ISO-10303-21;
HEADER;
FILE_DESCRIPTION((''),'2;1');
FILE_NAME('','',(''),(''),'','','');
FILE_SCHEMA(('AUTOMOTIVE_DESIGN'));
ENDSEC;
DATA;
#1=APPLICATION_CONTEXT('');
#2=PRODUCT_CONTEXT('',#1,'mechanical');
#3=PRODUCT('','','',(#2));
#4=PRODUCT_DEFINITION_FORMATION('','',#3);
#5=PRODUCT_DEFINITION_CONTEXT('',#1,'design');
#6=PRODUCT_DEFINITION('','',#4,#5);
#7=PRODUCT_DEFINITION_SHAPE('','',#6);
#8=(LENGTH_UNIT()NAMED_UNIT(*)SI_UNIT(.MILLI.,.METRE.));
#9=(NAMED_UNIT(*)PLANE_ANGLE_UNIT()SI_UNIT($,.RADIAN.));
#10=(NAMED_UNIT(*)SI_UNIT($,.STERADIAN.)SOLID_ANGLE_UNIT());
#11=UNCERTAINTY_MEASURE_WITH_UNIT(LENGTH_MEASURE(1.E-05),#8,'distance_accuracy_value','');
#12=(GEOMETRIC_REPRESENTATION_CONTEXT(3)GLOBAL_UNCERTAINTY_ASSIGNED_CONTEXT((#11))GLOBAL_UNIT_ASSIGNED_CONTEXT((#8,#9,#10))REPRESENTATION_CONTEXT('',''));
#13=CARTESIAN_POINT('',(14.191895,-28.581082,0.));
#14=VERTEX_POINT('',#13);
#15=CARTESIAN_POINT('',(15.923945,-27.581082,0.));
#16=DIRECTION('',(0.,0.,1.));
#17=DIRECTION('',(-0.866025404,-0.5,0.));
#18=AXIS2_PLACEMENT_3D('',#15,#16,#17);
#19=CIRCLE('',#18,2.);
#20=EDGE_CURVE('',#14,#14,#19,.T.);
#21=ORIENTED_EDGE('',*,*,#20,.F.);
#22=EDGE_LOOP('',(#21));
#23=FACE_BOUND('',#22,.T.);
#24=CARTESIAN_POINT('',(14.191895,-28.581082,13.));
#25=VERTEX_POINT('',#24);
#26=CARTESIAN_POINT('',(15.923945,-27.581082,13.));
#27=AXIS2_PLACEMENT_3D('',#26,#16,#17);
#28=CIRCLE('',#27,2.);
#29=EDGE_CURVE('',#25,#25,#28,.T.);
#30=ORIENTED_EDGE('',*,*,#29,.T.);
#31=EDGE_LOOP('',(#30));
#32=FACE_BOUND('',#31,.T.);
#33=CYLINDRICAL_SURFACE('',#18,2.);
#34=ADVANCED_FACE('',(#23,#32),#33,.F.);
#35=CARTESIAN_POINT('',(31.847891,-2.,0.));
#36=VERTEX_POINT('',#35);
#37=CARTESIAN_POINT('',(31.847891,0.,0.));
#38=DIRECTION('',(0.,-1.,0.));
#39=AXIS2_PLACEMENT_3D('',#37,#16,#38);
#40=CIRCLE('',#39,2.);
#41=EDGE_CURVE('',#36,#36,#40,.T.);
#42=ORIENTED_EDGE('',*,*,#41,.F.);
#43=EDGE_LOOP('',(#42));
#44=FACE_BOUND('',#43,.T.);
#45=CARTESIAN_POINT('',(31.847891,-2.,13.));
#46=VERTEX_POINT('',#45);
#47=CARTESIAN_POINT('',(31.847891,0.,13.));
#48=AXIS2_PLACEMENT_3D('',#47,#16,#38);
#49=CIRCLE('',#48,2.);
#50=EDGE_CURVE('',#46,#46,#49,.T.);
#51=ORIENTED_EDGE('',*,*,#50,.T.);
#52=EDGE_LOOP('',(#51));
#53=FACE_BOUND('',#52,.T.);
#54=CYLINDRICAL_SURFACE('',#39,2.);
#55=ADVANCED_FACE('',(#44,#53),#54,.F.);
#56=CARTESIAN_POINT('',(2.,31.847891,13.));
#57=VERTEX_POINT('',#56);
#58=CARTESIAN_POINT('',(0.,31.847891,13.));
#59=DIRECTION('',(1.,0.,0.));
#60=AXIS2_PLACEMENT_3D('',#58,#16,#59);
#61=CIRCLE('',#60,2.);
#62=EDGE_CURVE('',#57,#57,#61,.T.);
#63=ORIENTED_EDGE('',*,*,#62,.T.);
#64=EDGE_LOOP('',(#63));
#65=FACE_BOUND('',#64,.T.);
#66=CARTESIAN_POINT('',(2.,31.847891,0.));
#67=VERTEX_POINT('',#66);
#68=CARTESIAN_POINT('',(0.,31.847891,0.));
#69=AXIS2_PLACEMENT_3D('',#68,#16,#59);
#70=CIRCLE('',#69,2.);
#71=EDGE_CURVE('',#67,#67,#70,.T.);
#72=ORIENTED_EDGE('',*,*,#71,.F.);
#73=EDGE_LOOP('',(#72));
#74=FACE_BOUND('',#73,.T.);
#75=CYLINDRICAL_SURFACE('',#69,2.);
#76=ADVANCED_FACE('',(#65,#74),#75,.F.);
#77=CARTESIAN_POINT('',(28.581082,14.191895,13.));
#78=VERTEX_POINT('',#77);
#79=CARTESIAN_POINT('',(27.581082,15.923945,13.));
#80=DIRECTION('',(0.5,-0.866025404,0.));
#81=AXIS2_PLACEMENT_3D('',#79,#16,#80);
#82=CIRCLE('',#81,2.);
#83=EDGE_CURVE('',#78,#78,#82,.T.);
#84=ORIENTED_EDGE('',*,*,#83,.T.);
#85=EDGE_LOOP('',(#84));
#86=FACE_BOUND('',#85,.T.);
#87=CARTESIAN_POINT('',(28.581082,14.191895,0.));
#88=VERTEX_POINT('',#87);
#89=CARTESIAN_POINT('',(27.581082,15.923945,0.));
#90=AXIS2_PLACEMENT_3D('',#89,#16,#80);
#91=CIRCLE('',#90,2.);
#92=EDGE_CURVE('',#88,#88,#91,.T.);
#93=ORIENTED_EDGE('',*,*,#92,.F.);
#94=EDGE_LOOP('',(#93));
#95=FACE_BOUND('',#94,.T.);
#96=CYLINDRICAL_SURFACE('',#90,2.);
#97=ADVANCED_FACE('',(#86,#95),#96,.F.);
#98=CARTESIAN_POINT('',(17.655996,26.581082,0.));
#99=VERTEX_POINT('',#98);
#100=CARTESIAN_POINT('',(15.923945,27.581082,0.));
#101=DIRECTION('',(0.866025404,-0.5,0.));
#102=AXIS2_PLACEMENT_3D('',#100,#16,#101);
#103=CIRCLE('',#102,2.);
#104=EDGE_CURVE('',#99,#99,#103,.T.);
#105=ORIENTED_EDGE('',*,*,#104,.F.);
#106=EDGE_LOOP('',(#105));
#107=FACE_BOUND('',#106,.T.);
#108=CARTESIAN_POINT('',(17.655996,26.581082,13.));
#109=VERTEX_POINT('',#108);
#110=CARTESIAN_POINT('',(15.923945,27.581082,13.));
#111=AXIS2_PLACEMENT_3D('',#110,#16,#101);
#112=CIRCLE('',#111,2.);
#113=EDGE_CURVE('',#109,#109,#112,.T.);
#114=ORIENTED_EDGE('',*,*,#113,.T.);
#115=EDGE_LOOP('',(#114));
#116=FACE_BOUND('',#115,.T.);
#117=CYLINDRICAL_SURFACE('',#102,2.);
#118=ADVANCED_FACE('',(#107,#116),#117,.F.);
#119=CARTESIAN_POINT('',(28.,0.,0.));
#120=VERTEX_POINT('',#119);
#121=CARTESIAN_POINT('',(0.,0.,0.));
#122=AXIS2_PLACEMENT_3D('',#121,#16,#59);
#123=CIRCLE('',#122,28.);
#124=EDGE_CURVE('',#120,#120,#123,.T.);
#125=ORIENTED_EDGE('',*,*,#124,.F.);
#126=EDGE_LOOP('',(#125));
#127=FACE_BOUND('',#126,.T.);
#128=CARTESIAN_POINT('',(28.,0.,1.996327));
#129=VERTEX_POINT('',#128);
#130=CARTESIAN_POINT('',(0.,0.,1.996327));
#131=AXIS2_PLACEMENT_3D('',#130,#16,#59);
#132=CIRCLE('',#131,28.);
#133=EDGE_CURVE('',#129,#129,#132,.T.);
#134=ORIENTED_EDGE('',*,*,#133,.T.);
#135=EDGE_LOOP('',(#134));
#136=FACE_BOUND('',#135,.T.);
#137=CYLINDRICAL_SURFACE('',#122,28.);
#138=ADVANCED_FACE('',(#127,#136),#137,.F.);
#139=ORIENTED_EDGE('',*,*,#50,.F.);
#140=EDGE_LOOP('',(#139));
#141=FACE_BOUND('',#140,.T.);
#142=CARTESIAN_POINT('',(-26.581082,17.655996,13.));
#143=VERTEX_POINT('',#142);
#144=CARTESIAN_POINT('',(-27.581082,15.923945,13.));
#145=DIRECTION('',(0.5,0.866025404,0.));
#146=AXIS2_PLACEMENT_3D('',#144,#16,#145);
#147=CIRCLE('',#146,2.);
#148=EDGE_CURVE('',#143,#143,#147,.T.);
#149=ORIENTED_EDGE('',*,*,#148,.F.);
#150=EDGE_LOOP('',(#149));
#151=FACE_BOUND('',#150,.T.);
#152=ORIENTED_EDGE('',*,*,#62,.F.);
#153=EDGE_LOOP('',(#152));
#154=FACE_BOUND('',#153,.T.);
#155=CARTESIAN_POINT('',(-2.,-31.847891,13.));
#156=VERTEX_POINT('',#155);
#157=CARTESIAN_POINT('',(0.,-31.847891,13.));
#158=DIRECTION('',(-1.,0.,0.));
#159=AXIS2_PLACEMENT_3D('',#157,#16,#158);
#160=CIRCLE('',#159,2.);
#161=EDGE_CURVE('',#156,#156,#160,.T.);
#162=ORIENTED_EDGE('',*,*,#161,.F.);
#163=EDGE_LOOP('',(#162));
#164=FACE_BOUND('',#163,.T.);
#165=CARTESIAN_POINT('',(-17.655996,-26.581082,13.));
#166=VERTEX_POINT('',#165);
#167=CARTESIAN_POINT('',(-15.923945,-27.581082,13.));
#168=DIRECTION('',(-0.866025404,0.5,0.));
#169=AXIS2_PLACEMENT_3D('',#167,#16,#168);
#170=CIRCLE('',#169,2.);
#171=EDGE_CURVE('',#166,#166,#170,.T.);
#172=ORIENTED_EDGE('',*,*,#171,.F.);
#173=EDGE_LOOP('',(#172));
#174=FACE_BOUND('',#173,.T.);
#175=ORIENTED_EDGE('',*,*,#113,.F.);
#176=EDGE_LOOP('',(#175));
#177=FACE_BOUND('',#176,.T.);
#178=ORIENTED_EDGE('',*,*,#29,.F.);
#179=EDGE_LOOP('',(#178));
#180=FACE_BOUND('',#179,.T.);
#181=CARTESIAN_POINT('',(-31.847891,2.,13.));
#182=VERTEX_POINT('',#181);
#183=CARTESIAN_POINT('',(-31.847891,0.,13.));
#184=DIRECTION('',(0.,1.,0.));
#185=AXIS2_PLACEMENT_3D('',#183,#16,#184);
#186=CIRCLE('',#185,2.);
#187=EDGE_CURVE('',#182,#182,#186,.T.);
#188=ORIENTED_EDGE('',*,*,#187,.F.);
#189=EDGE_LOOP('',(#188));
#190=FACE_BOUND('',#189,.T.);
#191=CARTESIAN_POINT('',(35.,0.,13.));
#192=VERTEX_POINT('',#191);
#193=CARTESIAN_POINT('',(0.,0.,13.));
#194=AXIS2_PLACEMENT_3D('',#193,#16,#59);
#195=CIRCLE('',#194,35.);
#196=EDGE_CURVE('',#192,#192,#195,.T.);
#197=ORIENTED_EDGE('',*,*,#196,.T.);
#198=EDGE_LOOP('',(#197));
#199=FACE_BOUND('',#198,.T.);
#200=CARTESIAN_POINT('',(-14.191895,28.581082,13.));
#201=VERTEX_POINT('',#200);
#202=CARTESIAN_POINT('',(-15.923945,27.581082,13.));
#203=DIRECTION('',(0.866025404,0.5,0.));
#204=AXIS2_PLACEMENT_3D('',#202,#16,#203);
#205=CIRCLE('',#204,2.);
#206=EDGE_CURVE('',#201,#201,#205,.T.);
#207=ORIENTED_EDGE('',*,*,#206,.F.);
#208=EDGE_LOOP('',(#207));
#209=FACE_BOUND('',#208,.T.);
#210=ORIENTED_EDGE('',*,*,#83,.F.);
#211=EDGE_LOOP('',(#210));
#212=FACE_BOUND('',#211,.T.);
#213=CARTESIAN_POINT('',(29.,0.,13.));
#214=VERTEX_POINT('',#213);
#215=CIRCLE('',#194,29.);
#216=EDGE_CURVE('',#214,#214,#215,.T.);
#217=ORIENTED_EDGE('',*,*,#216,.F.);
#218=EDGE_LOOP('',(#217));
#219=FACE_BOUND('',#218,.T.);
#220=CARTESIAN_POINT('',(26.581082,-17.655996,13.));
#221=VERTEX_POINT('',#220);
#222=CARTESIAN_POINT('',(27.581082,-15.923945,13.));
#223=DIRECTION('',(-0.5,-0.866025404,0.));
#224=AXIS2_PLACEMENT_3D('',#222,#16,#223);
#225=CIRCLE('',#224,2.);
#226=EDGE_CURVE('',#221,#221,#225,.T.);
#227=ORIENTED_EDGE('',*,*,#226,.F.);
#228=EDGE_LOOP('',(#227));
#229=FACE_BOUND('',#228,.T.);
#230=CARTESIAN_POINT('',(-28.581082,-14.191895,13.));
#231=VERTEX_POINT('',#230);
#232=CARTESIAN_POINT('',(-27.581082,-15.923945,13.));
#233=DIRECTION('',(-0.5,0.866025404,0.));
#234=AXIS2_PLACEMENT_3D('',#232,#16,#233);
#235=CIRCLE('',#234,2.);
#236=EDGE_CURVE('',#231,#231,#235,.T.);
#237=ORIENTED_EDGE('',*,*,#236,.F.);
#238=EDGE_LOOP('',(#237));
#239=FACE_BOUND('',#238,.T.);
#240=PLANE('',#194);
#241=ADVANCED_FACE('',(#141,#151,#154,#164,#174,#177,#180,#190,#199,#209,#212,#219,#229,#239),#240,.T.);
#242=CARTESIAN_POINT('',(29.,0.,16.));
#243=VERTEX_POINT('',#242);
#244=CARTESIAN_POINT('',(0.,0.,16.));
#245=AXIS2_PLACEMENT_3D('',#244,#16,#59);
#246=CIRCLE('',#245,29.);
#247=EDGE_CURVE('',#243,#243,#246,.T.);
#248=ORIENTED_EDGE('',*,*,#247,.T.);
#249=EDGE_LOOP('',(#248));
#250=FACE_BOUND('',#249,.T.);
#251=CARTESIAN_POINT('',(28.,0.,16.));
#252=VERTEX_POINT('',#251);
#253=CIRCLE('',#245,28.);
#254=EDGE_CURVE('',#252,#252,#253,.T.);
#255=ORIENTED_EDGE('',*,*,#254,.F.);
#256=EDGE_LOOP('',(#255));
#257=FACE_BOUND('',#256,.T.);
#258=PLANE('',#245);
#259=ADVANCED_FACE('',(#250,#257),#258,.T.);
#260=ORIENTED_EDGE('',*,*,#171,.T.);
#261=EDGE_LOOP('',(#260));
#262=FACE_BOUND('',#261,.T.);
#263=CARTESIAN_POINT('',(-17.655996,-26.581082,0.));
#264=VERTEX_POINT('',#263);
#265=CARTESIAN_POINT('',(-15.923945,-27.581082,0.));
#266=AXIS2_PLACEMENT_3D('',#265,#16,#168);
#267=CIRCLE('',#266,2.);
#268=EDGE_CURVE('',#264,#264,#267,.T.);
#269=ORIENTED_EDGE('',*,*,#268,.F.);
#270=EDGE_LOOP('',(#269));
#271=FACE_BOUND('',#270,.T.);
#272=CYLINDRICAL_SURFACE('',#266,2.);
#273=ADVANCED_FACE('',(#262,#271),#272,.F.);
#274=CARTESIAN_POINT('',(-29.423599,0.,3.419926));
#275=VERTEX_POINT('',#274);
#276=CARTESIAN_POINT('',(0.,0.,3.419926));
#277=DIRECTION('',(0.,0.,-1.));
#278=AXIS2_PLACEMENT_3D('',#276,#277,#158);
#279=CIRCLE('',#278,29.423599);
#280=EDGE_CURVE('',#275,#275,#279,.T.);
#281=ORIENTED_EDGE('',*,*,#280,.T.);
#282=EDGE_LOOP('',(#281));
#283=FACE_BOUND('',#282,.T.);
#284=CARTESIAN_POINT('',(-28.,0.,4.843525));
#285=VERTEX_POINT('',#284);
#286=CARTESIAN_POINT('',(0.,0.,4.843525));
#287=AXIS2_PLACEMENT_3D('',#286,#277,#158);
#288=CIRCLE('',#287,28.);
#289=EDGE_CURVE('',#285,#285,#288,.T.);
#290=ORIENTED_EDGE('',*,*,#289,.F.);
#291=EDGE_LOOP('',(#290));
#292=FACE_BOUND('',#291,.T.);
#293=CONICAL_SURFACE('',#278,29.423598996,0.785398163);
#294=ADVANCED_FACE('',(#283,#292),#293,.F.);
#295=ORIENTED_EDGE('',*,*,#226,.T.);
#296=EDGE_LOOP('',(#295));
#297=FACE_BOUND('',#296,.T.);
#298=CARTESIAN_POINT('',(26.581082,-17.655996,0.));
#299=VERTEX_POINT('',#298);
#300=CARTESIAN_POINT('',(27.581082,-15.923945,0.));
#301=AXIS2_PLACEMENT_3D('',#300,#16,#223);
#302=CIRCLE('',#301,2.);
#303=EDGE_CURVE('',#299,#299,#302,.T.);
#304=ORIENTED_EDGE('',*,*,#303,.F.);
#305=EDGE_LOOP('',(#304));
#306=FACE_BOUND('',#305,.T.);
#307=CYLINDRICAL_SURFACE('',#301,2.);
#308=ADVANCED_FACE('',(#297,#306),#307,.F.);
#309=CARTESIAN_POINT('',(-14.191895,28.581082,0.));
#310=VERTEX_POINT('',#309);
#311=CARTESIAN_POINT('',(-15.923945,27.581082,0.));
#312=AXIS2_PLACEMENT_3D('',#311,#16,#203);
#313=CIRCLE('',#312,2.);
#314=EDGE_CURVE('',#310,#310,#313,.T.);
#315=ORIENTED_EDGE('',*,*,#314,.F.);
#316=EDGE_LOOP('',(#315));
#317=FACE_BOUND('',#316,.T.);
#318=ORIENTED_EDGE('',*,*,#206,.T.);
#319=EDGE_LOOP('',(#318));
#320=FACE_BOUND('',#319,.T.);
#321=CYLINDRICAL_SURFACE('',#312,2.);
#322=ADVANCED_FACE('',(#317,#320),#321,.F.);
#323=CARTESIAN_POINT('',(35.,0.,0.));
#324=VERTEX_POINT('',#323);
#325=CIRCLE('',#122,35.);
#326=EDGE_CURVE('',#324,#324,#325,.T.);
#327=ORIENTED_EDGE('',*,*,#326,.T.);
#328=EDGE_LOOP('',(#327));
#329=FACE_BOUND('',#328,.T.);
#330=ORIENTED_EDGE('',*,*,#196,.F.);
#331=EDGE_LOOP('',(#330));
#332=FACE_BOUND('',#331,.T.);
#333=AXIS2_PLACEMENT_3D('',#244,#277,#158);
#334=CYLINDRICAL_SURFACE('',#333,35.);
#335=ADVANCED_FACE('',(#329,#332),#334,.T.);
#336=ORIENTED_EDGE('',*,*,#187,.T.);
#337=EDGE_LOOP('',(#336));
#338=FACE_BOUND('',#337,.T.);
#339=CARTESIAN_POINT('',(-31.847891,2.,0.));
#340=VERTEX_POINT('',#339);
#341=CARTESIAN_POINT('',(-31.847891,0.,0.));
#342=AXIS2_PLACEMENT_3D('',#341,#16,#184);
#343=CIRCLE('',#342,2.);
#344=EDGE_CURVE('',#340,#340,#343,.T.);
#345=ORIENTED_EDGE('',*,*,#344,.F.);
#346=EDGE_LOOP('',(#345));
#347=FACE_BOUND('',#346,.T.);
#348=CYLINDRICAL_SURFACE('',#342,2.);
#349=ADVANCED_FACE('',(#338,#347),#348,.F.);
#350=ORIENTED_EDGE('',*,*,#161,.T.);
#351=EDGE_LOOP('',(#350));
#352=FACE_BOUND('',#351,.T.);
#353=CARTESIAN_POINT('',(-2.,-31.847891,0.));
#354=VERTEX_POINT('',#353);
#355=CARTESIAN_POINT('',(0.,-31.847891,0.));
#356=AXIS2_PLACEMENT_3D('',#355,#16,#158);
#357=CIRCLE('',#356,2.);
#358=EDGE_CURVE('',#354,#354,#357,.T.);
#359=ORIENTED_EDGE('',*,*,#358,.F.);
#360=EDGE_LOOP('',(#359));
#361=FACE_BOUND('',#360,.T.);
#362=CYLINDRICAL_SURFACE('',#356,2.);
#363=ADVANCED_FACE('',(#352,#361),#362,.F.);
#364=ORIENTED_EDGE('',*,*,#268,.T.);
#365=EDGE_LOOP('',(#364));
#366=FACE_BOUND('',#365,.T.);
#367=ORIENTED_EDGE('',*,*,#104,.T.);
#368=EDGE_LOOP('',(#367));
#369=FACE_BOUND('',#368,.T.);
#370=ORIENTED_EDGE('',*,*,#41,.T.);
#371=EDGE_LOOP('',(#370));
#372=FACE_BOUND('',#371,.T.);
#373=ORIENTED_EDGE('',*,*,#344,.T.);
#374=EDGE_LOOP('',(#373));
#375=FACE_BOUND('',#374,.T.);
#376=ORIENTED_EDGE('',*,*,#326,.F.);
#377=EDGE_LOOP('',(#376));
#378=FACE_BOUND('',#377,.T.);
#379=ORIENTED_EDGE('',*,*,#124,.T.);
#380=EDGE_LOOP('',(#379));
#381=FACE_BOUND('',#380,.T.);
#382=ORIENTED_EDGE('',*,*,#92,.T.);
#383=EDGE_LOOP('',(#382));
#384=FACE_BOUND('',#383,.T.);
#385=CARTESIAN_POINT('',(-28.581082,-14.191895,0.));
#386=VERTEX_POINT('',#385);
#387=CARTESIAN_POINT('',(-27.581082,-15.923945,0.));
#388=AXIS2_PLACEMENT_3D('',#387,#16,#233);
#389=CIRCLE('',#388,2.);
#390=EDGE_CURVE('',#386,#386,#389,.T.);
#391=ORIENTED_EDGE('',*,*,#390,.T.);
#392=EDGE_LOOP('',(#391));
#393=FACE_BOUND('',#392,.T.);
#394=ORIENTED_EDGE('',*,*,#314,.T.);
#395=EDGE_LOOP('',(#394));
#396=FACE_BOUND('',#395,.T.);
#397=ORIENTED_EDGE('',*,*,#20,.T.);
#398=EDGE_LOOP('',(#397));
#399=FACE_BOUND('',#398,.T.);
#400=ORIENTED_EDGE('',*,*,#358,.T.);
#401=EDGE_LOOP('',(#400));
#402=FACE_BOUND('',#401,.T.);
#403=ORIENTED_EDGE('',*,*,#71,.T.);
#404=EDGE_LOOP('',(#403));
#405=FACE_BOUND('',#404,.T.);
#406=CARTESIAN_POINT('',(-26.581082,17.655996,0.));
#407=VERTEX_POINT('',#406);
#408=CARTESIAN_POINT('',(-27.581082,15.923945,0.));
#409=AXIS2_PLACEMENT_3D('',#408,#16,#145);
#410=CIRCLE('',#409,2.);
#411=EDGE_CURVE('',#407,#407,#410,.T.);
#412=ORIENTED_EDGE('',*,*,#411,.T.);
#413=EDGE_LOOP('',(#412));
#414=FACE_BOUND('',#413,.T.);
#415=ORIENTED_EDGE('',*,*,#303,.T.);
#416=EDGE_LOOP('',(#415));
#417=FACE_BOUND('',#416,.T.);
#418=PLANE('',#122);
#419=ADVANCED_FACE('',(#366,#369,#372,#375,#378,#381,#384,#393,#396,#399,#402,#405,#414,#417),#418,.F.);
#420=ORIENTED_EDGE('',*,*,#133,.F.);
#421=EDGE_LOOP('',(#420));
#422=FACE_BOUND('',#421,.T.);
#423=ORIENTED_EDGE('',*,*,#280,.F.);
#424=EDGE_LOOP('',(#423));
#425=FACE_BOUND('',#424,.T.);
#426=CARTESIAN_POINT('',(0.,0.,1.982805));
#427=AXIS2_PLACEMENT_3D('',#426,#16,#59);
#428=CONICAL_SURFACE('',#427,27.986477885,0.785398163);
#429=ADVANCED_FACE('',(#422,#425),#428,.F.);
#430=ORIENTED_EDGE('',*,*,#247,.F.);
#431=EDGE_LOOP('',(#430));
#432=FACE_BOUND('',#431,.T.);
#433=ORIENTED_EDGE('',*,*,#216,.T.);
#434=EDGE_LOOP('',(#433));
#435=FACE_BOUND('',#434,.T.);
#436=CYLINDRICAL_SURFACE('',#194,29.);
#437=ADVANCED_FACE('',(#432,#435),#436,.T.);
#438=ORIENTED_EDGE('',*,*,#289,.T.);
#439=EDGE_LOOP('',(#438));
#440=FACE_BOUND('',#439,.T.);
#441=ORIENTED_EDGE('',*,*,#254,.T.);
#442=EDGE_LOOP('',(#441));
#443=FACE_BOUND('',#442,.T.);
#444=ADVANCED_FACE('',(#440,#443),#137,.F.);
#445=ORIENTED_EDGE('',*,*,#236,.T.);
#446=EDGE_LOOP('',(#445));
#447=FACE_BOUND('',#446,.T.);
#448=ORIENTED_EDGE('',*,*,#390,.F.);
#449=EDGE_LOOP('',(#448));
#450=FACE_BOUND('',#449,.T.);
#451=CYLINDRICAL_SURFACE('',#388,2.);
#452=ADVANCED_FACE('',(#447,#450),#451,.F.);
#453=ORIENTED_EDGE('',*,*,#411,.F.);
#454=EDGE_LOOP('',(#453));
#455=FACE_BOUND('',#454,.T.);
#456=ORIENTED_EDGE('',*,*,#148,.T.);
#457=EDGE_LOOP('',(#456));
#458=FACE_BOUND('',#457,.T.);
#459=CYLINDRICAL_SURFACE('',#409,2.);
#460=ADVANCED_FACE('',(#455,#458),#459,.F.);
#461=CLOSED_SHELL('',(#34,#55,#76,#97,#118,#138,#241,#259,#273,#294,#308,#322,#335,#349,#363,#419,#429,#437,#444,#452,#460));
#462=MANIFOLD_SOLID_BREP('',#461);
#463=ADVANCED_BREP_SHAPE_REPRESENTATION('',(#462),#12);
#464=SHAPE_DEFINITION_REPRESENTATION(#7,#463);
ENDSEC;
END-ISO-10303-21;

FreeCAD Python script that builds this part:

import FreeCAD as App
import Part
import Sketcher
from FreeCAD import Vector
Q = App.Units.Quantity


def add_polygon(sketch, points):
    """Adds a closed chain of lines whose ends are joined by coincident constraints."""
    first, n = sketch.GeometryCount, len(points)
    for a, b in zip(points, points[1:] + points[:1]):
        sketch.addGeometry(Part.LineSegment(App.Vector(*a, 0), App.Vector(*b, 0)), False)
    for i in range(n):
        sketch.addConstraint(Sketcher.Constraint("Coincident", first + i, 2, first + (i + 1) % n, 1))

doc = App.newDocument("Part")
body = doc.addObject("PartDesign::Body", "Body")

sketch1 = body.newObject("Sketcher::SketchObject", "Sketch")
sketch1.AttachmentSupport = (doc.getObject("XY_Plane"), [""])
sketch1.MapMode = "FlatFace"
sketch1.addGeometry(Part.Circle(Vector(0, 0, 0), Vector(0, 0, 1), 35), False)
sketch1.addConstraint(Sketcher.Constraint("Coincident", 0, 3, -1, 1))
sketch1.addConstraint(Sketcher.Constraint("Diameter", 0, Q("70 mm")))
pad1 = body.newObject("PartDesign::Pad", "Pad")
pad1.Profile = sketch1
pad1.Length = 16

sketch2 = body.newObject("Sketcher::SketchObject", "Sketch001")
sketch2.AttachmentSupport = (doc.getObject("XY_Plane"), [""])
sketch2.MapMode = "FlatFace"
sketch2.AttachmentOffset = App.Placement(Vector(0, 0, 16), App.Rotation())
sketch2.addGeometry(Part.Circle(Vector(0, 0, 0), Vector(0, 0, 1), 35), False)
sketch2.addGeometry(Part.Circle(Vector(0, 0, 0), Vector(0, 0, 1), 29), False)
sketch2.addConstraint(Sketcher.Constraint("Coincident", 0, 3, -1, 1))
sketch2.addConstraint(Sketcher.Constraint("Coincident", 1, 3, -1, 1))
sketch2.addConstraint(Sketcher.Constraint("Diameter", 0, Q("70 mm")))
sketch2.addConstraint(Sketcher.Constraint("Diameter", 1, Q("58 mm")))
pocket1 = body.newObject("PartDesign::Pocket", "Pocket")
pocket1.Profile = sketch2
pocket1.Length = 3

sketch3 = body.newObject("Sketcher::SketchObject", "Sketch002")
sketch3.AttachmentSupport = (doc.getObject("XY_Plane"), [""])
sketch3.MapMode = "FlatFace"
sketch3.AttachmentOffset = App.Placement(Vector(0, 0, 16), App.Rotation())
sketch3.addGeometry(Part.Circle(Vector(0, 0, 0), Vector(0, 0, 1), 28), False)
sketch3.addConstraint(Sketcher.Constraint("Coincident", 0, 3, -1, 1))
sketch3.addConstraint(Sketcher.Constraint("Diameter", 0, Q("56 mm")))
pocket2 = body.newObject("PartDesign::Pocket", "Pocket001")
pocket2.Profile = sketch3
pocket2.Type = "ThroughAll"

sketch4 = body.newObject("Sketcher::SketchObject", "Sketch003")
sketch4.AttachmentSupport = (doc.getObject("XY_Plane"), [""])
sketch4.MapMode = "FlatFace"
sketch4.AttachmentOffset = App.Placement(Vector(0, 0, 13), App.Rotation())
sketch4.addGeometry(Part.Circle(Vector(0, 31.8, 0), Vector(0, 0, 1), 2), False)
sketch4.addConstraint(Sketcher.Constraint("PointOnObject", 0, 3, -2))
sketch4.addConstraint(Sketcher.Constraint("Diameter", 0, Q("4 mm")))
sketch4.addConstraint(Sketcher.Constraint("DistanceY", -1, 1, 0, 3, Q("31.847891 mm")))
pocket3 = body.newObject("PartDesign::Pocket", "Pocket002")
pocket3.Profile = sketch4
pocket3.Type = "ThroughAll"
doc.recompute()

polarpattern = body.newObject("PartDesign::PolarPattern", "PolarPattern")
polarpattern.Originals = [pocket3]
polarpattern.Axis = (doc.getObject("Z_Axis"), [""])
polarpattern.Angle = 360
polarpattern.Occurrences = 12
body.Tip = polarpattern

sketch5 = body.newObject("Sketcher::SketchObject", "Sketch004")
sketch5.AttachmentSupport = (doc.getObject("YZ_Plane"), [""])
sketch5.MapMode = "FlatFace"
add_polygon(sketch5, [(28, 4.9), (28, 2), (29.4, 3.4)])
sketch5.addConstraint(Sketcher.Constraint("Perpendicular", 1, 2))
sketch5.addConstraint(Sketcher.Constraint("Angle", 1, Q("45 deg")))
sketch5.addConstraint(Sketcher.Constraint("Distance", 2, Q("2.03 mm")))
sketch5.addConstraint(Sketcher.Constraint("DistanceX", -1, 1, 1, 2, Q("29.423599 mm")))
sketch5.addConstraint(Sketcher.Constraint("Distance", 0, Q("2.872548 mm")))
sketch5.addConstraint(Sketcher.Constraint("DistanceY", -1, 1, 0, 2, Q("1.982805 mm")))
groove = body.newObject("PartDesign::Groove", "Groove")
groove.Profile = sketch5
groove.ReferenceAxis = (sketch5, ["V_Axis"])
groove.Angle = 360

doc.recompute()
